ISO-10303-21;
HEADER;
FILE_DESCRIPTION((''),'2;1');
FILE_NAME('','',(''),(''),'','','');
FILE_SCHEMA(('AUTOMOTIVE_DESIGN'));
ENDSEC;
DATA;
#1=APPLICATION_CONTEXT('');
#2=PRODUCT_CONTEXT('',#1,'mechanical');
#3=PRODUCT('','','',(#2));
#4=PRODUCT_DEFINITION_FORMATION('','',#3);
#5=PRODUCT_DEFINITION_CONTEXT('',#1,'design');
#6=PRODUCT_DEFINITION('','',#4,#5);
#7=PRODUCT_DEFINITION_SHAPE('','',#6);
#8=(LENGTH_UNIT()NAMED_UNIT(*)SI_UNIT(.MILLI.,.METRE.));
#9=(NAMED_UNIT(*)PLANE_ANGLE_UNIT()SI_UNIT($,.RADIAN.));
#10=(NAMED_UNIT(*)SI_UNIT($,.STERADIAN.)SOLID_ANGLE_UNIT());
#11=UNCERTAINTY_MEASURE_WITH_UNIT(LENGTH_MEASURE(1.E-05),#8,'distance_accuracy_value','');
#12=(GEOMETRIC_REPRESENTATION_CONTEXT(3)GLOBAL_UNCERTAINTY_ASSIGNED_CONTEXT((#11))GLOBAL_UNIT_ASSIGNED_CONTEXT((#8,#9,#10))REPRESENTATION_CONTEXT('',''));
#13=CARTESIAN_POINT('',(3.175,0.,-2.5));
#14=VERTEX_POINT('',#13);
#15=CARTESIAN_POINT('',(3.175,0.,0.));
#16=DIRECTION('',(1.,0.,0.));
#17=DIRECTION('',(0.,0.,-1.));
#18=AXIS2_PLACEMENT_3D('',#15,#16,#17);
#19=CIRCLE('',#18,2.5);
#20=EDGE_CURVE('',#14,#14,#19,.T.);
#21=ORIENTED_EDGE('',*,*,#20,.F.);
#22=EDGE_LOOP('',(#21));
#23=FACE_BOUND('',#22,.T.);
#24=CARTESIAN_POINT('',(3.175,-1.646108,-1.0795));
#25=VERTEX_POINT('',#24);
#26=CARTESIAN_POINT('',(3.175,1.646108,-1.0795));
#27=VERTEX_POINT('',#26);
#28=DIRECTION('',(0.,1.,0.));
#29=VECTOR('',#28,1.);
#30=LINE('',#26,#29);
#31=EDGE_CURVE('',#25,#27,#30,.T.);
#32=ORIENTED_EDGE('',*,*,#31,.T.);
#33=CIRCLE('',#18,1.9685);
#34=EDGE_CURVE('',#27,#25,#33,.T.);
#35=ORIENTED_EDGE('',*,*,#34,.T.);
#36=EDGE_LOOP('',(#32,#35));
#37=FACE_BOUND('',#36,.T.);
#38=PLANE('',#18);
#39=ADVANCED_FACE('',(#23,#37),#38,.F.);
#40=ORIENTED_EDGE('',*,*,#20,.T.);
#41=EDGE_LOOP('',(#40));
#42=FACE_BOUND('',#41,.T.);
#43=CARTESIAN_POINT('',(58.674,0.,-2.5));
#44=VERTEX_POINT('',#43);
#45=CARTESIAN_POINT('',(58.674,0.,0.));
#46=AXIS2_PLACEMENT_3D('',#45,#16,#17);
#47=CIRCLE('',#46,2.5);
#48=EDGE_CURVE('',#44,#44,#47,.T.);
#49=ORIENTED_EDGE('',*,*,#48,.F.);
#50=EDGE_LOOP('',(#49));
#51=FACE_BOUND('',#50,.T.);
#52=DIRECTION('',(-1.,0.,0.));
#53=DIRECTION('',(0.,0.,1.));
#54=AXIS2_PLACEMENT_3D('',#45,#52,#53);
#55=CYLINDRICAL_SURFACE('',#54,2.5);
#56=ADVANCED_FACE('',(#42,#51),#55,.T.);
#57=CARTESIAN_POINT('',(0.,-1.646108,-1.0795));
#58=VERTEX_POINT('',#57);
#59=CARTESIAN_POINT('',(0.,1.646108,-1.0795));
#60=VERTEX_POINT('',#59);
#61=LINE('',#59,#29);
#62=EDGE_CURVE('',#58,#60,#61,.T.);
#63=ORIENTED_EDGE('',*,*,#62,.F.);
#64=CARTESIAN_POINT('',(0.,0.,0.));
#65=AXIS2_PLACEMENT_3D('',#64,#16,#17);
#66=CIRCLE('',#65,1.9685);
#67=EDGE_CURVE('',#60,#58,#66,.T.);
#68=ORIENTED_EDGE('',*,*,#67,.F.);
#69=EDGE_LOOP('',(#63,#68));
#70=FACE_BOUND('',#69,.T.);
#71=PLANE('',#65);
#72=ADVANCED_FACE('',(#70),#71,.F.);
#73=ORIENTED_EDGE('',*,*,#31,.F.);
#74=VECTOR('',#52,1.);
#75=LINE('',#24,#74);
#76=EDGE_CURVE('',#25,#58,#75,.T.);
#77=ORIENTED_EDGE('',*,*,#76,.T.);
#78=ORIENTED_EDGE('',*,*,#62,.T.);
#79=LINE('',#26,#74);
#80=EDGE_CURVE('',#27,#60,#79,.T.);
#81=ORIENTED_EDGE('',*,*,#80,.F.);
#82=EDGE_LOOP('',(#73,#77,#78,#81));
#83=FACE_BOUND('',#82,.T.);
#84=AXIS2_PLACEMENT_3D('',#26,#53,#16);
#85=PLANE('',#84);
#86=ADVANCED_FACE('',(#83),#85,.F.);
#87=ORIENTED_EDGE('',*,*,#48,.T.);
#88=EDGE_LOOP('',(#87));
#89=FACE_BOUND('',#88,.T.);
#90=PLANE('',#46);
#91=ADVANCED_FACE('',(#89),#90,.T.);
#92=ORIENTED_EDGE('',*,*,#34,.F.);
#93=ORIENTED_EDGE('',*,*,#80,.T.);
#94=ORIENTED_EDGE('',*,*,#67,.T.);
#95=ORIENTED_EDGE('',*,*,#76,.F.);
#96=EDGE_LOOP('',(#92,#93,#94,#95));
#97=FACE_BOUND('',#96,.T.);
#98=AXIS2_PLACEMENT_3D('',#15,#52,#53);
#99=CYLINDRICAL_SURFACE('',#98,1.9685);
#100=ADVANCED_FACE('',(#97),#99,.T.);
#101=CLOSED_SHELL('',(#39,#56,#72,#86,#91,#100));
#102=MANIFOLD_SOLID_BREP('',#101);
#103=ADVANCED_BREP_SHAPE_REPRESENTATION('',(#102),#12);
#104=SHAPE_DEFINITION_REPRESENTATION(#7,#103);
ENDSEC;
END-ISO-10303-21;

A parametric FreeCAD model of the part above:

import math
import FreeCAD as App
import Part
import Sketcher

V = App.Vector
Q = App.Units.Quantity

doc = App.newDocument("Part")
body = doc.addObject("PartDesign::Body", "Body")

# Sketch on YZ plane
sketch1 = body.newObject("Sketcher::SketchObject", "Sketch")
sketch1.AttachmentSupport = (doc.getObject("YZ_Plane"), [""])
sketch1.MapMode = "FlatFace"
sketch1.addGeometry(Part.Circle(V(0, 0, 0), V(0, 0, 1), 2.5), False)
sketch1.addConstraint(Sketcher.Constraint("Coincident", 0, 3, -1, 1))
sketch1.addConstraint(Sketcher.Constraint("Diameter", 0, 5.0))
pad1 = body.newObject("PartDesign::Pad", "Pad")
pad1.Profile = sketch1
pad1.Length = Q("2.31 in")

# Sketch on YZ plane
sketch2 = body.newObject("Sketcher::SketchObject", "Sketch001")
sketch2.AttachmentSupport = (doc.getObject("YZ_Plane"), [""])
sketch2.MapMode = "FlatFace"
sketch2.addGeometry(Part.LineSegment(V(9.4, 9.4, 0), V(-9.4, 9.4, 0)), False)
sketch2.addGeometry(Part.LineSegment(V(-9.4, 9.4, 0), V(-9.4, -9.4, 0)), False)
sketch2.addGeometry(Part.LineSegment(V(-9.4, -9.4, 0), V(9.4, -9.4, 0)), False)
sketch2.addGeometry(Part.LineSegment(V(9.4, -9.4, 0), V(9.4, 9.4, 0)), False)
sketch2.addGeometry(Part.ArcOfCircle(Part.Circle(V(0, 0, 0), V(0, 0, 1), 2), math.radians(-33), math.radians(213)), False)
sketch2.addGeometry(Part.LineSegment(V(1.6, -1.1, 0), V(-1.6, -1.1, 0)), False)
sketch2.addConstraint(Sketcher.Constraint("Coincident", 0, 2, 1, 1))
sketch2.addConstraint(Sketcher.Constraint("Coincident", 1, 2, 2, 1))
sketch2.addConstraint(Sketcher.Constraint("Coincident", 2, 2, 3, 1))
sketch2.addConstraint(Sketcher.Constraint("Coincident", 3, 2, 0, 1))
sketch2.addConstraint(Sketcher.Constraint("Coincident", 4, 1, 5, 1))
sketch2.addConstraint(Sketcher.Constraint("Coincident", 5, 2, 4, 2))
sketch2.addConstraint(Sketcher.Constraint("Horizontal", 0))
sketch2.addConstraint(Sketcher.Constraint("Vertical", 1))
sketch2.addConstraint(Sketcher.Constraint("Horizontal", 2))
sketch2.addConstraint(Sketcher.Constraint("Vertical", 3))
sketch2.addConstraint(Sketcher.Constraint("Horizontal", 5))
sketch2.addConstraint(Sketcher.Constraint("Coincident", 4, 3, -1, 1))
sketch2.addConstraint(Sketcher.Constraint("Symmetric", 0, 2, 2, 2, -1, 1))
sketch2.addConstraint(Sketcher.Constraint("Equal", 2, 1))
sketch2.addConstraint(Sketcher.Constraint("Radius", 4, Q("0.0775 in")))
sketch2.addConstraint(Sketcher.Constraint("DistanceX", 0, 2, 0, 1, 18.82))
sketch2.addConstraint(Sketcher.Constraint("DistanceY", 4, 1, -1, 1, Q("0.0425 in")))
pocket1 = body.newObject("PartDesign::Pocket", "Pocket")
pocket1.Profile = sketch2
pocket1.Length = Q("0.125 in")
pocket1.Reversed = True

doc.recompute()
